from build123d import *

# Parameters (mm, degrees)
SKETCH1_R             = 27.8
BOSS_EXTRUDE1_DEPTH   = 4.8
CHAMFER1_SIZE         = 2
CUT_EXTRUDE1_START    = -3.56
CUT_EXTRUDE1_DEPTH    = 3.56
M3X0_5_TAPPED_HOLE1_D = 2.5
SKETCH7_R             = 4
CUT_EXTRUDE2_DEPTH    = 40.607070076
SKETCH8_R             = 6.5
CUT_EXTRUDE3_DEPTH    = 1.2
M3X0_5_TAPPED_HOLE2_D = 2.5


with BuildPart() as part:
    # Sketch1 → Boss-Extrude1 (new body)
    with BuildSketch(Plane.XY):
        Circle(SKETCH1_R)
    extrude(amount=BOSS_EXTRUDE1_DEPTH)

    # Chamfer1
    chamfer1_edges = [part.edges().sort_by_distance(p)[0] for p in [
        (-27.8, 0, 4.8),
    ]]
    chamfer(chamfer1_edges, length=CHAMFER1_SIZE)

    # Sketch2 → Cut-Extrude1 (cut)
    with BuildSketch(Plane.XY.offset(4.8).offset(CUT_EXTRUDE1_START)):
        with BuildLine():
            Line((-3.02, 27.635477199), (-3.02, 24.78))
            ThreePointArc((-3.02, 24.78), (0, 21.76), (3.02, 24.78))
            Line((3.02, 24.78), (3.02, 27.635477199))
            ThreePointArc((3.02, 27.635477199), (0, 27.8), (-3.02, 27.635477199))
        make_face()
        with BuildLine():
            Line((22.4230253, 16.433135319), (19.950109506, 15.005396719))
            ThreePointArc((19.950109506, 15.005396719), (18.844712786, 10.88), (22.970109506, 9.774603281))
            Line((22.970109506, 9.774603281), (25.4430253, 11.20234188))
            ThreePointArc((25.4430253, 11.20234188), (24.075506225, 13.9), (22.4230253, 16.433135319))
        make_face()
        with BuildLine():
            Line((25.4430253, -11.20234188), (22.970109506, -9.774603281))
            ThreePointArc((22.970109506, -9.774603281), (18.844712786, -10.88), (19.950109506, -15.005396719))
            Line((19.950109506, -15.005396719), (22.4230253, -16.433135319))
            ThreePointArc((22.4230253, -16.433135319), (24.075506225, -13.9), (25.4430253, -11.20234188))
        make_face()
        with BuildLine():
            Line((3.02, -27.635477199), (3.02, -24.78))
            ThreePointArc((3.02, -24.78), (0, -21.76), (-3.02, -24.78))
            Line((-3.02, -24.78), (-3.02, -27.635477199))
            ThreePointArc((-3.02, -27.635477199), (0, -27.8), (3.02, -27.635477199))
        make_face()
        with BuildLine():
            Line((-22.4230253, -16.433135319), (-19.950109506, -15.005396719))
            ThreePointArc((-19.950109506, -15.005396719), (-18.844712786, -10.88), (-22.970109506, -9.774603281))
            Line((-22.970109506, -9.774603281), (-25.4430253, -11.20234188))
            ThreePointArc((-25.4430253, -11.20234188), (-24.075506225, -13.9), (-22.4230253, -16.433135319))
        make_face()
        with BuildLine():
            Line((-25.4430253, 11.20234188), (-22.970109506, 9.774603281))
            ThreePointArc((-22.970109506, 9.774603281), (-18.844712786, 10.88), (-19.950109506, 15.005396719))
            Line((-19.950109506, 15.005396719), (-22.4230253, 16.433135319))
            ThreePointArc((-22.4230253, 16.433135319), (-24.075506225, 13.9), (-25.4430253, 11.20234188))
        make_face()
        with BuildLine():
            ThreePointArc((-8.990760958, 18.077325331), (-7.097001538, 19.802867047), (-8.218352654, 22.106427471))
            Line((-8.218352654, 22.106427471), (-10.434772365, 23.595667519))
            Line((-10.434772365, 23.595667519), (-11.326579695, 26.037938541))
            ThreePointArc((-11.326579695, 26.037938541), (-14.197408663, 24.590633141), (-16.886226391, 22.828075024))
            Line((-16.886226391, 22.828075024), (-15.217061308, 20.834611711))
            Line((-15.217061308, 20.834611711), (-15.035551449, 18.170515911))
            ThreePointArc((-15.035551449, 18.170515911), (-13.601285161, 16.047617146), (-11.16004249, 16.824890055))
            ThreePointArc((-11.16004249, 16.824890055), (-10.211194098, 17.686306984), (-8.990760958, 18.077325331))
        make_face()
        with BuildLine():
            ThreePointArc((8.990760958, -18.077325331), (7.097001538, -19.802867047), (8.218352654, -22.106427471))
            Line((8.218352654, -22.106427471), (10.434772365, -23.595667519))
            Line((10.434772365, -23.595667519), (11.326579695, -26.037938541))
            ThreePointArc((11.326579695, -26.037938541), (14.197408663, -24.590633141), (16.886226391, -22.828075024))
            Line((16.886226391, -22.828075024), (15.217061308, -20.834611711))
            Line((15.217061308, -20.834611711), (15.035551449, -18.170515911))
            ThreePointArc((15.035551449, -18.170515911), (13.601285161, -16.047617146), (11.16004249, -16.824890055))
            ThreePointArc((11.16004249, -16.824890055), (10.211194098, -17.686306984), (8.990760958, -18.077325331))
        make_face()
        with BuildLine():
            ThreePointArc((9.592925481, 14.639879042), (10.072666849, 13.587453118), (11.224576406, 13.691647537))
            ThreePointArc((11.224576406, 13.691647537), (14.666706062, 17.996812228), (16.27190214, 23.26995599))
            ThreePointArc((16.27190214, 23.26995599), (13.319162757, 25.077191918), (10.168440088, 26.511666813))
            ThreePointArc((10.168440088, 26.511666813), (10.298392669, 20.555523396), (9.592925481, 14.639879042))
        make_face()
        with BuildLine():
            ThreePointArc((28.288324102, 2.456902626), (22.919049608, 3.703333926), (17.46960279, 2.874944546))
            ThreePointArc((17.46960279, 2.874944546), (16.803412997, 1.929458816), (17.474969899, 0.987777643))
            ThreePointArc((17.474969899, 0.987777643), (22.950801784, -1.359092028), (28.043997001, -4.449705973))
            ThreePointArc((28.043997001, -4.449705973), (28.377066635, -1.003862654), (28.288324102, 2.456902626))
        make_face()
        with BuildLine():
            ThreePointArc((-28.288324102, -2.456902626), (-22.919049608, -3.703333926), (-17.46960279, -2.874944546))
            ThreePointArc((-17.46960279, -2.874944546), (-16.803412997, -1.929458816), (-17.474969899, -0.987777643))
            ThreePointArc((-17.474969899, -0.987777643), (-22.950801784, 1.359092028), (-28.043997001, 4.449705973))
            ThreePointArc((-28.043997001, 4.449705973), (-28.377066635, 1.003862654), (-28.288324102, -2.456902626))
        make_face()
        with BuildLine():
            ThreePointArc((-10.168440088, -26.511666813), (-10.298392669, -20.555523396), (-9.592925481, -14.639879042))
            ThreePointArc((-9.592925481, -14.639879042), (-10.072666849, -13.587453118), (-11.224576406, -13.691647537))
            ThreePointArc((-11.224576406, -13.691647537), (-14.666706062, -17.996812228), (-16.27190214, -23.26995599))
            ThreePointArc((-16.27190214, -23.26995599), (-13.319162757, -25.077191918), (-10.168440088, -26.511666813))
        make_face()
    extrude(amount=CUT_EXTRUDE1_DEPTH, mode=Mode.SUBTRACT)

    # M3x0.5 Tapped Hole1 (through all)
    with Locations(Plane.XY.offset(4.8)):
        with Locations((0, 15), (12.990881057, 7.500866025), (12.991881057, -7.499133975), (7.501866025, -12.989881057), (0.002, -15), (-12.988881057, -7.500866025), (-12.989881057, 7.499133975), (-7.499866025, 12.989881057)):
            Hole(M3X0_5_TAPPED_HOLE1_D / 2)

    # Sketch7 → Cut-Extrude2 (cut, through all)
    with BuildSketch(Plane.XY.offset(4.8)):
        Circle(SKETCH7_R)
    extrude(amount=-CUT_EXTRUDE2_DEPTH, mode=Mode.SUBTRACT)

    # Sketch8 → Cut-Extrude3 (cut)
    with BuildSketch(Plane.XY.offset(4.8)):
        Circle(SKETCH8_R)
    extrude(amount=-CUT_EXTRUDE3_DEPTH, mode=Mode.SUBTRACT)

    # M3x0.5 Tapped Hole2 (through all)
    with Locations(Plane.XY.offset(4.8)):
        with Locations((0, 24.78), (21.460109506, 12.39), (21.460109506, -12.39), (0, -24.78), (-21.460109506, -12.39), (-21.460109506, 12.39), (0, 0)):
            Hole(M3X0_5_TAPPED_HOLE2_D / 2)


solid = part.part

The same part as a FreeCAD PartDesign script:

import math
import FreeCAD as App
import Part
import Sketcher
Q = App.Units.Quantity


def edges_at(feature, points):
    """Names of the edges that pass closest to the given points."""
    edges = feature.Shape.Edges
    near = lambda p: min(range(len(edges)), key=lambda i: edges[i].distToShape(Part.Vertex(*p))[0])
    return sorted({f"Edge{near(p) + 1}" for p in points})

doc = App.newDocument("Part")
body = doc.addObject("PartDesign::Body", "Body")

# Sketch on XY plane
sketch1 = body.newObject("Sketcher::SketchObject", "Sketch")
sketch1.AttachmentSupport = (doc.getObject("XY_Plane"), [""])
sketch1.MapMode = "FlatFace"
sketch1.addGeometry(Part.Circle(App.Vector(0, 0, 0), App.Vector(0, 0, 1), 27.8), False)
sketch1.addConstraint(Sketcher.Constraint("Coincident", 0, 3, -1, 1))
sketch1.addConstraint(Sketcher.Constraint("Diameter", 0, 55.6))
pad1 = body.newObject("PartDesign::Pad", "Pad")
pad1.Profile = sketch1
pad1.Length = 4.8
doc.recompute()

chamfer = body.newObject("PartDesign::Chamfer", "Chamfer")
chamfer.Base = (pad1, edges_at(pad1, [(-27.8, 0, 4.8)]))
chamfer.Size = 2

# Sketch on XY plane
sketch2 = body.newObject("Sketcher::SketchObject", "Sketch001")
sketch2.AttachmentSupport = (doc.getObject("XY_Plane"), [""])
sketch2.MapMode = "FlatFace"
sketch2.AttachmentOffset = App.Placement(App.Vector(0, 0, 1.24), App.Rotation())
sketch2.addGeometry(Part.LineSegment(App.Vector(-3.02, 27.635477, 0), App.Vector(-3.02, 24.78, 0)), False)
sketch2.addGeometry(Part.ArcOfCircle(Part.Circle(App.Vector(0, 24.78, 0), App.Vector(0, 0, 1), 3.02), math.radians(180), math.radians(360)), False)
sketch2.addGeometry(Part.LineSegment(App.Vector(3.02, 24.78, 0), App.Vector(3.02, 27.635477, 0)), False)
sketch2.addGeometry(Part.ArcOfCircle(Part.Circle(App.Vector(0, 0, 0), App.Vector(0, 0, 1), 27.8), math.radians(83.763475), math.radians(96.236525)), False)
sketch2.addGeometry(Part.LineSegment(App.Vector(22.423025, 16.433135, 0), App.Vector(19.95011, 15.005397, 0)), False)
sketch2.addGeometry(Part.ArcOfCircle(Part.Circle(App.Vector(21.46011, 12.39, 0), App.Vector(0, 0, 1), 3.02), math.radians(120), math.radians(300)), False)
sketch2.addGeometry(Part.LineSegment(App.Vector(22.97011, 9.774603, 0), App.Vector(25.443025, 11.202342, 0)), False)
sketch2.addGeometry(Part.ArcOfCircle(Part.Circle(App.Vector(0, 0, 0), App.Vector(0, 0, 1), 27.8), math.radians(23.763475), math.radians(36.236525)), False)
sketch2.addGeometry(Part.LineSegment(App.Vector(25.443025, -11.202342, 0), App.Vector(22.97011, -9.774603, 0)), False)
sketch2.addGeometry(Part.ArcOfCircle(Part.Circle(App.Vector(21.46011, -12.39, 0), App.Vector(0, 0, 1), 3.02), math.radians(60), math.radians(240)), False)
sketch2.addGeometry(Part.LineSegment(App.Vector(19.95011, -15.005397, 0), App.Vector(22.423025, -16.433135, 0)), False)
sketch2.addGeometry(Part.ArcOfCircle(Part.Circle(App.Vector(0, 0, 0), App.Vector(0, 0, 1), 27.8), math.radians(-36.236525), math.radians(-23.763475)), False)
sketch2.addGeometry(Part.LineSegment(App.Vector(3.02, -27.635477, 0), App.Vector(3.02, -24.78, 0)), False)
sketch2.addGeometry(Part.ArcOfCircle(Part.Circle(App.Vector(0, -24.78, 0), App.Vector(0, 0, 1), 3.02), math.radians(0), math.radians(180)), False)
sketch2.addGeometry(Part.LineSegment(App.Vector(-3.02, -24.78, 0), App.Vector(-3.02, -27.635477, 0)), False)
sketch2.addGeometry(Part.ArcOfCircle(Part.Circle(App.Vector(0, 0, 0), App.Vector(0, 0, 1), 27.8), math.radians(-96.236525), math.radians(-83.763475)), False)
sketch2.addGeometry(Part.LineSegment(App.Vector(-22.423025, -16.433135, 0), App.Vector(-19.95011, -15.005397, 0)), False)
sketch2.addGeometry(Part.ArcOfCircle(Part.Circle(App.Vector(-21.46011, -12.39, 0), App.Vector(0, 0, 1), 3.02), math.radians(-60), math.radians(120)), False)
sketch2.addGeometry(Part.LineSegment(App.Vector(-22.97011, -9.774603, 0), App.Vector(-25.443025, -11.202342, 0)), False)
sketch2.addGeometry(Part.ArcOfCircle(Part.Circle(App.Vector(0, 0, 0), App.Vector(0, 0, 1), 27.8), math.radians(-156.236525), math.radians(-143.763475)), False)
sketch2.addGeometry(Part.LineSegment(App.Vector(-25.443025, 11.202342, 0), App.Vector(-22.97011, 9.774603, 0)), False)
sketch2.addGeometry(Part.ArcOfCircle(Part.Circle(App.Vector(-21.46011, 12.39, 0), App.Vector(0, 0, 1), 3.02), math.radians(-120), math.radians(60)), False)
sketch2.addGeometry(Part.LineSegment(App.Vector(-19.95011, 15.005397, 0), App.Vector(-22.423025, 16.433135, 0)), False)
sketch2.addGeometry(Part.ArcOfCircle(Part.Circle(App.Vector(0, 0, 0), App.Vector(0, 0, 1), 27.8), math.radians(143.763475), math.radians(156.236525)), False)
sketch2.addGeometry(Part.ArcOfCircle(Part.Circle(App.Vector(-9.196805, 20.205415, 0), App.Vector(0, 0, 1), 2.138041), math.radians(-84.4698), math.radians(62.7651)), False)
sketch2.addGeometry(Part.LineSegment(App.Vector(-8.218353, 22.106427, 0), App.Vector(-10.434772, 23.595668, 0)), False)
sketch2.addGeometry(Part.LineSegment(App.Vector(-10.434772, 23.595668, 0), App.Vector(-11.32658, 26.037939, 0)), False)
sketch2.addGeometry(Part.ArcOfCircle(Part.Circle(App.Vector(0, 0, 0), App.Vector(0, 0, 1), 28.394817), math.radians(113.509182), math.radians(126.490818)), False)
sketch2.addGeometry(Part.LineSegment(App.Vector(-16.886226, 22.828075, 0), App.Vector(-15.217061, 20.834612, 0)), False)
sketch2.addGeometry(Part.LineSegment(App.Vector(-15.217061, 20.834612, 0), App.Vector(-15.035551, 18.170516, 0)), False)
sketch2.addGeometry(Part.ArcOfCircle(Part.Circle(App.Vector(-12.9, 18.067374, 0), App.Vector(0, 0, 1), 2.138041), math.radians(177.2349), math.radians(324.4698)), False)
sketch2.addGeometry(Part.ArcOfCircle(Part.Circle(App.Vector(-8.699371, 15.067753, 0), App.Vector(0, 0, 1), 3.023646), math.radians(95.530199), math.radians(144.469801)), False)
sketch2.addGeometry(Part.ArcOfCircle(Part.Circle(App.Vector(9.196805, -20.205415, 0), App.Vector(0, 0, 1), 2.138041), math.radians(95.5302), math.radians(242.7651)), False)
sketch2.addGeometry(Part.LineSegment(App.Vector(8.218353, -22.106427, 0), App.Vector(10.434772, -23.595668, 0)), False)
sketch2.addGeometry(Part.LineSegment(App.Vector(10.434772, -23.595668, 0), App.Vector(11.32658, -26.037939, 0)), False)
sketch2.addGeometry(Part.ArcOfCircle(Part.Circle(App.Vector(0, 0, 0), App.Vector(0, 0, 1), 28.394817), math.radians(-66.490818), math.radians(-53.509182)), False)
sketch2.addGeometry(Part.LineSegment(App.Vector(16.886226, -22.828075, 0), App.Vector(15.217061, -20.834612, 0)), False)
sketch2.addGeometry(Part.LineSegment(App.Vector(15.217061, -20.834612, 0), App.Vector(15.035551, -18.170516, 0)), False)
sketch2.addGeometry(Part.ArcOfCircle(Part.Circle(App.Vector(12.9, -18.067374, 0), App.Vector(0, 0, 1), 2.138041), math.radians(-2.7651), math.radians(144.4698)), False)
sketch2.addGeometry(Part.ArcOfCircle(Part.Circle(App.Vector(8.699371, -15.067753, 0), App.Vector(0, 0, 1), 3.023646), math.radians(-84.469801), math.radians(-35.530199)), False)
sketch2.addGeometry(Part.ArcOfCircle(Part.Circle(App.Vector(10.575128, 14.452053, 0), App.Vector(0, 0, 1), 1), math.radians(169.17406), math.radians(310.500042)), False)
sketch2.addGeometry(Part.ArcOfCircle(Part.Circle(App.Vector(1.721448, 24.818365, 0), App.Vector(0, 0, 1), 14.63261), math.radians(-49.499958), math.radians(-6.074357)), False)
sketch2.addGeometry(Part.ArcOfCircle(Part.Circle(App.Vector(0, 0, 0), App.Vector(0, 0, 1), 28.394817), math.radians(55.036193), math.radians(69.01589)), False)
sketch2.addGeometry(Part.ArcOfCircle(Part.Circle(App.Vector(-32.086668, 22.610245, 0), App.Vector(0, 0, 1), 42.434836), math.radians(-10.82594), math.radians(5.275173)), False)
sketch2.addGeometry(Part.ArcOfCircle(Part.Circle(App.Vector(22.354058, -10.918365, 0), App.Vector(0, 0, 1), 14.63261), math.radians(66.074357), math.radians(109.499958)), False)
sketch2.addGeometry(Part.ArcOfCircle(Part.Circle(App.Vector(17.803409, 1.932303, 0), App.Vector(0, 0, 1), 1), math.radians(109.499958), math.radians(250.82594)), False)
sketch2.addGeometry(Part.ArcOfCircle(Part.Circle(App.Vector(3.537713, -39.092992, 0), App.Vector(0, 0, 1), 42.434836), math.radians(54.724827), math.radians(70.82594)), False)
sketch2.addGeometry(Part.ArcOfCircle(Part.Circle(App.Vector(0, 0, 0), App.Vector(0, 0, 1), 28.394817), math.radians(-9.01589), math.radians(4.963807)), False)
sketch2.addGeometry(Part.ArcOfCircle(Part.Circle(App.Vector(-22.354058, 10.918365, 0), App.Vector(0, 0, 1), 14.63261), math.radians(-113.925643), math.radians(-70.500042)), False)
sketch2.addGeometry(Part.ArcOfCircle(Part.Circle(App.Vector(-17.803409, -1.932303, 0), App.Vector(0, 0, 1), 1), math.radians(-70.500042), math.radians(70.82594)), False)
sketch2.addGeometry(Part.ArcOfCircle(Part.Circle(App.Vector(-3.537713, 39.092992, 0), App.Vector(0, 0, 1), 42.434836), math.radians(-125.275173), math.radians(-109.17406)), False)
sketch2.addGeometry(Part.ArcOfCircle(Part.Circle(App.Vector(0, 0, 0), App.Vector(0, 0, 1), 28.394817), math.radians(170.98411), math.radians(184.963807)), False)
sketch2.addGeometry(Part.ArcOfCircle(Part.Circle(App.Vector(32.086668, -22.610245, 0), App.Vector(0, 0, 1), 42.434836), math.radians(169.17406), math.radians(185.275173)), False)
sketch2.addGeometry(Part.ArcOfCircle(Part.Circle(App.Vector(-10.575128, -14.452053, 0), App.Vector(0, 0, 1), 1), math.radians(-10.82594), math.radians(130.500042)), False)
sketch2.addGeometry(Part.ArcOfCircle(Part.Circle(App.Vector(-1.721448, -24.818365, 0), App.Vector(0, 0, 1), 14.63261), math.radians(130.500042), math.radians(173.925643)), False)
sketch2.addGeometry(Part.ArcOfCircle(Part.Circle(App.Vector(0, 0, 0), App.Vector(0, 0, 1), 28.394817), math.radians(-124.963807), math.radians(-110.98411)), False)
sketch2.addConstraint(Sketcher.Constraint("Tangent", 0, 2, 1, 1))
sketch2.addConstraint(Sketcher.Constraint("Tangent", 1, 2, 2, 1))
sketch2.addConstraint(Sketcher.Constraint("Coincident", 2, 2, 3, 1))
sketch2.addConstraint(Sketcher.Constraint("Coincident", 3, 2, 0, 1))
sketch2.addConstraint(Sketcher.Constraint("Tangent", 4, 2, 5, 1))
sketch2.addConstraint(Sketcher.Constraint("Tangent", 5, 2, 6, 1))
sketch2.addConstraint(Sketcher.Constraint("Coincident", 6, 2, 7, 1))
sketch2.addConstraint(Sketcher.Constraint("Coincident", 7, 2, 4, 1))
sketch2.addConstraint(Sketcher.Constraint("Tangent", 8, 2, 9, 1))
sketch2.addConstraint(Sketcher.Constraint("Tangent", 9, 2, 10, 1))
sketch2.addConstraint(Sketcher.Constraint("Coincident", 10, 2, 11, 1))
sketch2.addConstraint(Sketcher.Constraint("Coincident", 11, 2, 8, 1))
sketch2.addConstraint(Sketcher.Constraint("Tangent", 12, 2, 13, 1))
sketch2.addConstraint(Sketcher.Constraint("Tangent", 13, 2, 14, 1))
sketch2.addConstraint(Sketcher.Constraint("Coincident", 14, 2, 15, 1))
sketch2.addConstraint(Sketcher.Constraint("Coincident", 15, 2, 12, 1))
sketch2.addConstraint(Sketcher.Constraint("Tangent", 16, 2, 17, 1))
sketch2.addConstraint(Sketcher.Constraint("Tangent", 17, 2, 18, 1))
sketch2.addConstraint(Sketcher.Constraint("Coincident", 18, 2, 19, 1))
sketch2.addConstraint(Sketcher.Constraint("Coincident", 19, 2, 16, 1))
sketch2.addConstraint(Sketcher.Constraint("Tangent", 20, 2, 21, 1))
sketch2.addConstraint(Sketcher.Constraint("Tangent", 21, 2, 22, 1))
sketch2.addConstraint(Sketcher.Constraint("Coincident", 22, 2, 23, 1))
sketch2.addConstraint(Sketcher.Constraint("Coincident", 23, 2, 20, 1))
sketch2.addConstraint(Sketcher.Constraint("Coincident", 24, 2, 25, 1))
sketch2.addConstraint(Sketcher.Constraint("Coincident", 25, 2, 26, 1))
sketch2.addConstraint(Sketcher.Constraint("Coincident", 26, 2, 27, 1))
sketch2.addConstraint(Sketcher.Constraint("Coincident", 27, 2, 28, 1))
sketch2.addConstraint(Sketcher.Constraint("Coincident", 28, 2, 29, 1))
sketch2.addConstraint(Sketcher.Constraint("Coincident", 29, 2, 30, 1))
sketch2.addConstraint(Sketcher.Constraint("Tangent", 30, 2, 31, 2))
sketch2.addConstraint(Sketcher.Constraint("Tangent", 31, 1, 24, 1))
sketch2.addConstraint(Sketcher.Constraint("Coincident", 32, 2, 33, 1))
sketch2.addConstraint(Sketcher.Constraint("Coincident", 33, 2, 34, 1))
sketch2.addConstraint(Sketcher.Constraint("Coincident", 34, 2, 35, 1))
sketch2.addConstraint(Sketcher.Constraint("Coincident", 35, 2, 36, 1))
sketch2.addConstraint(Sketcher.Constraint("Coincident", 36, 2, 37, 1))
sketch2.addConstraint(Sketcher.Constraint("Coincident", 37, 2, 38, 1))
sketch2.addConstraint(Sketcher.Constraint("Tangent", 38, 2, 39, 2))
sketch2.addConstraint(Sketcher.Constraint("Tangent", 39, 1, 32, 1))
sketch2.addConstraint(Sketcher.Constraint("Tangent", 40, 2, 41, 1))
sketch2.addConstraint(Sketcher.Constraint("Coincident", 41, 2, 42, 1))
sketch2.addConstraint(Sketcher.Constraint("Coincident", 42, 2, 43, 2))
sketch2.addConstraint(Sketcher.Constraint("Tangent", 43, 1, 40, 1))
sketch2.addConstraint(Sketcher.Constraint("Tangent", 44, 2, 45, 1))
sketch2.addConstraint(Sketcher.Constraint("Tangent", 45, 2, 46, 2))
sketch2.addConstraint(Sketcher.Constraint("Coincident", 46, 1, 47, 1))
sketch2.addConstraint(Sketcher.Constraint("Coincident", 47, 2, 44, 1))
sketch2.addConstraint(Sketcher.Constraint("Tangent", 48, 2, 49, 1))
sketch2.addConstraint(Sketcher.Constraint("Tangent", 49, 2, 50, 2))
sketch2.addConstraint(Sketcher.Constraint("Coincident", 50, 1, 51, 1))
sketch2.addConstraint(Sketcher.Constraint("Coincident", 51, 2, 48, 1))
sketch2.addConstraint(Sketcher.Constraint("Tangent", 52, 1, 53, 1))
sketch2.addConstraint(Sketcher.Constraint("Tangent", 53, 2, 54, 1))
sketch2.addConstraint(Sketcher.Constraint("Coincident", 54, 2, 55, 1))
sketch2.addConstraint(Sketcher.Constraint("Coincident", 55, 2, 52, 2))
sketch2.addConstraint(Sketcher.Constraint("Vertical", 0))
sketch2.addConstraint(Sketcher.Constraint("Vertical", 2))
sketch2.addConstraint(Sketcher.Constraint("Vertical", 12))
sketch2.addConstraint(Sketcher.Constraint("Vertical", 14))
sketch2.addConstraint(Sketcher.Constraint("Coincident", 3, 3, -1, 1))
sketch2.addConstraint(Sketcher.Constraint("Coincident", 7, 3, -1, 1))
sketch2.addConstraint(Sketcher.Constraint("Coincident", 11, 3, -1, 1))
sketch2.addConstraint(Sketcher.Constraint("Coincident", 15, 3, -1, 1))
sketch2.addConstraint(Sketcher.Constraint("Coincident", 19, 3, -1, 1))
sketch2.addConstraint(Sketcher.Constraint("Coincident", 23, 3, -1, 1))
sketch2.addConstraint(Sketcher.Constraint("Coincident", 27, 3, -1, 1))
sketch2.addConstraint(Sketcher.Constraint("Coincident", 35, 3, -1, 1))
sketch2.addConstraint(Sketcher.Constraint("Coincident", 42, 3, -1, 1))
sketch2.addConstraint(Sketcher.Constraint("Coincident", 47, 3, -1, 1))
sketch2.addConstraint(Sketcher.Constraint("Coincident", 51, 3, -1, 1))
sketch2.addConstraint(Sketcher.Constraint("Coincident", 55, 3, -1, 1))
sketch2.addConstraint(Sketcher.Constraint("Equal", 1, 5))
sketch2.addConstraint(Sketcher.Constraint("Equal", 3, 7))
sketch2.addConstraint(Sketcher.Constraint("Equal", 5, 9))
sketch2.addConstraint(Sketcher.Constraint("Equal", 7, 11))
sketch2.addConstraint(Sketcher.Constraint("Equal", 9, 13))
sketch2.addConstraint(Sketcher.Constraint("Equal", 11, 15))
sketch2.addConstraint(Sketcher.Constraint("Equal", 13, 17))
sketch2.addConstraint(Sketcher.Constraint("Equal", 15, 19))
sketch2.addConstraint(Sketcher.Constraint("Equal", 17, 21))
sketch2.addConstraint(Sketcher.Constraint("Equal", 19, 23))
sketch2.addConstraint(Sketcher.Constraint("Equal", 24, 30))
sketch2.addConstraint(Sketcher.Constraint("Equal", 30, 32))
sketch2.addConstraint(Sketcher.Constraint("Equal", 27, 35))
sketch2.addConstraint(Sketcher.Constraint("Equal", 32, 38))
sketch2.addConstraint(Sketcher.Constraint("Equal", 31, 39))
sketch2.addConstraint(Sketcher.Constraint("Equal", 35, 42))
sketch2.addConstraint(Sketcher.Constraint("Equal", 41, 44))
sketch2.addConstraint(Sketcher.Constraint("Equal", 40, 45))
sketch2.addConstraint(Sketcher.Constraint("Equal", 43, 46))
sketch2.addConstraint(Sketcher.Constraint("Equal", 42, 47))
sketch2.addConstraint(Sketcher.Constraint("Equal", 44, 48))
sketch2.addConstraint(Sketcher.Constraint("Equal", 45, 49))
sketch2.addConstraint(Sketcher.Constraint("Equal", 46, 50))
sketch2.addConstraint(Sketcher.Constraint("Equal", 47, 51))
sketch2.addConstraint(Sketcher.Constraint("Equal", 50, 52))
sketch2.addConstraint(Sketcher.Constraint("Equal", 49, 53))
sketch2.addConstraint(Sketcher.Constraint("Equal", 48, 54))
sketch2.addConstraint(Sketcher.Constraint("Equal", 51, 55))
sketch2.addConstraint(Sketcher.Constraint("Symmetric", 1, 3, 13, 3, -1, 1))
sketch2.addConstraint(Sketcher.Constraint("Symmetric", 5, 3, 17, 3, -1, 1))
sketch2.addConstraint(Sketcher.Constraint("Symmetric", 9, 3, 21, 3, -1, 1))
sketch2.addConstraint(Sketcher.Constraint("Symmetric", 24, 3, 32, 3, -1, 1))
sketch2.addConstraint(Sketcher.Constraint("Symmetric", 30, 3, 38, 3, -1, 1))
sketch2.addConstraint(Sketcher.Constraint("Symmetric", 44, 3, 48, 3, -1, 1))
sketch2.addConstraint(Sketcher.Constraint("Symmetric", 46, 3, 50, 3, -1, 1))
sketch2.addConstraint(Sketcher.Constraint("Symmetric", 43, 3, 52, 3, -1, 1))
sketch2.addConstraint(Sketcher.Constraint("Symmetric", 41, 3, 54, 3, -1, 1))
sketch2.addConstraint(Sketcher.Constraint("Symmetric", 25, 2, 33, 2, -1, 1))
sketch2.addConstraint(Sketcher.Constraint("Symmetric", 28, 2, 36, 2, -1, 1))
sketch2.addConstraint(Sketcher.Constraint("Symmetric", 9, 3, 17, 3, -2))
sketch2.addConstraint(Sketcher.Constraint("PointOnObject", 1, 3, -2))
sketch2.addConstraint(Sketcher.Constraint("Parallel", 4, 6))
sketch2.addConstraint(Sketcher.Constraint("Parallel", 8, 10))
sketch2.addConstraint(Sketcher.Constraint("Parallel", 6, 16))
sketch2.addConstraint(Sketcher.Constraint("Parallel", 16, 18))
sketch2.addConstraint(Sketcher.Constraint("Parallel", 10, 20))
sketch2.addConstraint(Sketcher.Constraint("Parallel", 20, 22))
sketch2.addConstraint(Sketcher.Constraint("Parallel", 25, 33))
sketch2.addConstraint(Sketcher.Constraint("Parallel", 26, 34))
sketch2.addConstraint(Sketcher.Constraint("Parallel", 28, 36))
sketch2.addConstraint(Sketcher.Constraint("Parallel", 29, 37))
sketch2.addConstraint(Sketcher.Constraint("Horizontal", 9, 2, 16, 2))
sketch2.addConstraint(Sketcher.Constraint("Equal", 4, 6))
sketch2.addConstraint(Sketcher.Constraint("Equal", 26, 28))
sketch2.addConstraint(Sketcher.Constraint("Equal", 25, 29))
sketch2.addConstraint(Sketcher.Constraint("Radius", 40, 1.0))
sketch2.addConstraint(Sketcher.Constraint("Radius", 3, 27.8))
sketch2.addConstraint(Sketcher.Constraint("Angle", 4, Q("-150 deg")))
sketch2.addConstraint(Sketcher.Constraint("Radius", 1, 3.02))
sketch2.addConstraint(Sketcher.Constraint("Distance", 26, 2.600002))
sketch2.addConstraint(Sketcher.Constraint("DistanceX", 30, 3, -1, 1, 12.9))
sketch2.addConstraint(Sketcher.Constraint("DistanceY", -1, 1, 1, 3, 24.78))
sketch2.addConstraint(Sketcher.Constraint("DistanceY", -1, 1, 5, 3, 12.39))
sketch2.addConstraint(Sketcher.Constraint("Radius", 24, 2.138041))
sketch2.addConstraint(Sketcher.Constraint("Radius", 41, 14.63261))
sketch2.addConstraint(Sketcher.Constraint("Radius", 27, 28.394817))
sketch2.addConstraint(Sketcher.Constraint("Radius", 31, 3.023646))
sketch2.addConstraint(Sketcher.Constraint("Radius", 43, 42.434836))
sketch2.addConstraint(Sketcher.Constraint("Distance", 25, 2.670272))
sketch2.addConstraint(Sketcher.Constraint("DistanceX", 31, 3, -1, 1, 8.699371))
sketch2.addConstraint(Sketcher.Constraint("DistanceX", 43, 3, -1, 1, 32.086668))
sketch2.addConstraint(Sketcher.Constraint("DistanceX", -1, 1, 44, 3, 22.354058))
sketch2.addConstraint(Sketcher.Constraint("DistanceX", -1, 1, 45, 3, 17.803409))
sketch2.addConstraint(Sketcher.Constraint("DistanceX", 26, 2, -1, 1, 11.32658))
sketch2.addConstraint(Sketcher.Constraint("DistanceX", 28, 2, -1, 1, 15.217061))
sketch2.addConstraint(Sketcher.Constraint("DistanceY", -1, 1, 28, 2, 20.834612))
sketch2.addConstraint(Sketcher.Constraint("DistanceX", 29, 2, -1, 1, 15.035551))
sketch2.addConstraint(Sketcher.Constraint("DistanceX", 31, 1, -1, 1, 8.990761))
sketch2.addConstraint(Sketcher.Constraint("DistanceX", -1, 1, 42, 2, 10.16844))
sketch2.addConstraint(Sketcher.Constraint("DistanceY", -1, 1, 43, 1, 14.639879))
sketch2.addConstraint(Sketcher.Constraint("DistanceX", -1, 1, 45, 2, 17.47497))
sketch2.addConstraint(Sketcher.Constraint("DistanceX", -1, 1, 41, 3, 1.721448))
sketch2.addConstraint(Sketcher.Constraint("DistanceY", 44, 3, -1, 1, 10.918365))
sketch2.addConstraint(Sketcher.Constraint("DistanceX", 24, 2, -1, 1, 8.218353))
pocket1 = body.newObject("PartDesign::Pocket", "Pocket")
pocket1.Profile = sketch2
pocket1.Length = 3.56
pocket1.Reversed = True

# Sketch on XY plane
sketch3 = body.newObject("Sketcher::SketchObject", "Sketch002")
sketch3.AttachmentSupport = (doc.getObject("XY_Plane"), [""])
sketch3.MapMode = "FlatFace"
sketch3.AttachmentOffset = App.Placement(App.Vector(0, 0, 4.8), App.Rotation())
sketch3.addGeometry(Part.Circle(App.Vector(0, 15, 0), App.Vector(0, 0, 1), 1.25), False)
sketch3.addGeometry(Part.Circle(App.Vector(12.990881, 7.500866, 0), App.Vector(0, 0, 1), 1.25), False)
sketch3.addGeometry(Part.Circle(App.Vector(12.991881, -7.499134, 0), App.Vector(0, 0, 1), 1.25), False)
sketch3.addGeometry(Part.Circle(App.Vector(7.501866, -12.989881, 0), App.Vector(0, 0, 1), 1.25), False)
sketch3.addGeometry(Part.Circle(App.Vector(0.002, -15, 0), App.Vector(0, 0, 1), 1.25), False)
sketch3.addGeometry(Part.Circle(App.Vector(-12.988881, -7.500866, 0), App.Vector(0, 0, 1), 1.25), False)
sketch3.addGeometry(Part.Circle(App.Vector(-12.989881, 7.499134, 0), App.Vector(0, 0, 1), 1.25), False)
sketch3.addGeometry(Part.Circle(App.Vector(-7.499866, 12.989881, 0), App.Vector(0, 0, 1), 1.25), False)
sketch3.addConstraint(Sketcher.Constraint("Equal", 0, 1))
sketch3.addConstraint(Sketcher.Constraint("Equal", 1, 2))
sketch3.addConstraint(Sketcher.Constraint("Equal", 2, 3))
sketch3.addConstraint(Sketcher.Constraint("Equal", 3, 4))
sketch3.addConstraint(Sketcher.Constraint("Equal", 4, 5))
sketch3.addConstraint(Sketcher.Constraint("Equal", 5, 6))
sketch3.addConstraint(Sketcher.Constraint("Equal", 6, 7))
sketch3.addConstraint(Sketcher.Constraint("PointOnObject", 0, 3, -2))
sketch3.addConstraint(Sketcher.Constraint("Diameter", 0, 2.5))
sketch3.addConstraint(Sketcher.Constraint("DistanceY", -1, 1, 0, 3, 15.0))
sketch3.addConstraint(Sketcher.Constraint("DistanceY", 4, 3, -1, 1, 15.0))
sketch3.addConstraint(Sketcher.Constraint("DistanceY", 2, 3, 1, 3, 15.0))
sketch3.addConstraint(Sketcher.Constraint("DistanceY", 5, 3, 6, 3, 15.0))
sketch3.addConstraint(Sketcher.Constraint("DistanceX", -1, 1, 4, 3, 0.002))
sketch3.addConstraint(Sketcher.Constraint("DistanceX", 1, 3, 2, 3, 0.001))
sketch3.addConstraint(Sketcher.Constraint("DistanceX", 6, 3, 5, 3, 0.001))
sketch3.addConstraint(Sketcher.Constraint("DistanceX", -1, 1, 1, 3, 12.990881))
sketch3.addConstraint(Sketcher.Constraint("DistanceY", 3, 3, -1, 1, 12.989881))
sketch3.addConstraint(Sketcher.Constraint("DistanceX", 5, 3, -1, 1, 12.988881))
sketch3.addConstraint(Sketcher.Constraint("DistanceY", -1, 1, 7, 3, 12.989881))
sketch3.addConstraint(Sketcher.Constraint("DistanceY", -1, 1, 1, 3, 7.500866))
sketch3.addConstraint(Sketcher.Constraint("DistanceX", -1, 1, 3, 3, 7.501866))
sketch3.addConstraint(Sketcher.Constraint("DistanceY", 5, 3, -1, 1, 7.500866))
sketch3.addConstraint(Sketcher.Constraint("DistanceX", 7, 3, -1, 1, 7.499866))
doc.recompute()
hole = body.newObject("PartDesign::Hole", "Hole")
hole.Profile = sketch3
hole.ThreadType = "None"
hole.Diameter = 2.5
hole.DepthType = "ThroughAll"

# Sketch on XY plane
sketch4 = body.newObject("Sketcher::SketchObject", "Sketch003")
sketch4.AttachmentSupport = (doc.getObject("XY_Plane"), [""])
sketch4.MapMode = "FlatFace"
sketch4.AttachmentOffset = App.Placement(App.Vector(0, 0, 4.8), App.Rotation())
sketch4.addGeometry(Part.Circle(App.Vector(0, 0, 0), App.Vector(0, 0, 1), 4), False)
sketch4.addConstraint(Sketcher.Constraint("Coincident", 0, 3, -1, 1))
sketch4.addConstraint(Sketcher.Constraint("Diameter", 0, 8.0))
pocket2 = body.newObject("PartDesign::Pocket", "Pocket001")
pocket2.Profile = sketch4
pocket2.Type = "ThroughAll"

# Sketch on XY plane
sketch5 = body.newObject("Sketcher::SketchObject", "Sketch004")
sketch5.AttachmentSupport = (doc.getObject("XY_Plane"), [""])
sketch5.MapMode = "FlatFace"
sketch5.AttachmentOffset = App.Placement(App.Vector(0, 0, 4.8), App.Rotation())
sketch5.addGeometry(Part.Circle(App.Vector(0, 0, 0), App.Vector(0, 0, 1), 6.5), False)
sketch5.addConstraint(Sketcher.Constraint("Coincident", 0, 3, -1, 1))
sketch5.addConstraint(Sketcher.Constraint("Diameter", 0, 13.0))
pocket3 = body.newObject("PartDesign::Pocket", "Pocket002")
pocket3.Profile = sketch5
pocket3.Length = 1.2

# Sketch on XY plane
sketch6 = body.newObject("Sketcher::SketchObject", "Sketch005")
sketch6.AttachmentSupport = (doc.getObject("XY_Plane"), [""])
sketch6.MapMode = "FlatFace"
sketch6.AttachmentOffset = App.Placement(App.Vector(0, 0, 4.8), App.Rotation())
sketch6.addGeometry(Part.Circle(App.Vector(0, 24.78, 0), App.Vector(0, 0, 1), 1.25), False)
sketch6.addGeometry(Part.Circle(App.Vector(21.46011, 12.39, 0), App.Vector(0, 0, 1), 1.25), False)
sketch6.addGeometry(Part.Circle(App.Vector(21.46011, -12.39, 0), App.Vector(0, 0, 1), 1.25), False)
sketch6.addGeometry(Part.Circle(App.Vector(0, -24.78, 0), App.Vector(0, 0, 1), 1.25), False)
sketch6.addGeometry(Part.Circle(App.Vector(-21.46011, -12.39, 0), App.Vector(0, 0, 1), 1.25), False)
sketch6.addGeometry(Part.Circle(App.Vector(-21.46011, 12.39, 0), App.Vector(0, 0, 1), 1.25), False)
sketch6.addGeometry(Part.Circle(App.Vector(0, 0, 0), App.Vector(0, 0, 1), 1.25), False)
sketch6.addConstraint(Sketcher.Constraint("Coincident", 6, 3, -1, 1))
sketch6.addConstraint(Sketcher.Constraint("Equal", 0, 1))
sketch6.addConstraint(Sketcher.Constraint("Equal", 1, 2))
sketch6.addConstraint(Sketcher.Constraint("Equal", 2, 3))
sketch6.addConstraint(Sketcher.Constraint("Equal", 3, 4))
sketch6.addConstraint(Sketcher.Constraint("Equal", 4, 5))
sketch6.addConstraint(Sketcher.Constraint("Equal", 5, 6))
sketch6.addConstraint(Sketcher.Constraint("Symmetric", 0, 3, 3, 3, -1, 1))
sketch6.addConstraint(Sketcher.Constraint("Symmetric", 1, 3, 4, 3, -1, 1))
sketch6.addConstraint(Sketcher.Constraint("Symmetric", 2, 3, 5, 3, -1, 1))
sketch6.addConstraint(Sketcher.Constraint("Symmetric", 2, 3, 4, 3, -2))
sketch6.addConstraint(Sketcher.Constraint("PointOnObject", 0, 3, -2))
sketch6.addConstraint(Sketcher.Constraint("Diameter", 0, 2.5))
sketch6.addConstraint(Sketcher.Constraint("DistanceY", -1, 1, 0, 3, 24.78))
sketch6.addConstraint(Sketcher.Constraint("DistanceY", -1, 1, 1, 3, 12.39))
sketch6.addConstraint(Sketcher.Constraint("DistanceX", -1, 1, 1, 3, 21.46011))
doc.recompute()
hole2 = body.newObject("PartDesign::Hole", "Hole001")
hole2.Profile = sketch6
hole2.ThreadType = "None"
hole2.Diameter = 2.5
hole2.DepthType = "ThroughAll"

doc.recompute()
